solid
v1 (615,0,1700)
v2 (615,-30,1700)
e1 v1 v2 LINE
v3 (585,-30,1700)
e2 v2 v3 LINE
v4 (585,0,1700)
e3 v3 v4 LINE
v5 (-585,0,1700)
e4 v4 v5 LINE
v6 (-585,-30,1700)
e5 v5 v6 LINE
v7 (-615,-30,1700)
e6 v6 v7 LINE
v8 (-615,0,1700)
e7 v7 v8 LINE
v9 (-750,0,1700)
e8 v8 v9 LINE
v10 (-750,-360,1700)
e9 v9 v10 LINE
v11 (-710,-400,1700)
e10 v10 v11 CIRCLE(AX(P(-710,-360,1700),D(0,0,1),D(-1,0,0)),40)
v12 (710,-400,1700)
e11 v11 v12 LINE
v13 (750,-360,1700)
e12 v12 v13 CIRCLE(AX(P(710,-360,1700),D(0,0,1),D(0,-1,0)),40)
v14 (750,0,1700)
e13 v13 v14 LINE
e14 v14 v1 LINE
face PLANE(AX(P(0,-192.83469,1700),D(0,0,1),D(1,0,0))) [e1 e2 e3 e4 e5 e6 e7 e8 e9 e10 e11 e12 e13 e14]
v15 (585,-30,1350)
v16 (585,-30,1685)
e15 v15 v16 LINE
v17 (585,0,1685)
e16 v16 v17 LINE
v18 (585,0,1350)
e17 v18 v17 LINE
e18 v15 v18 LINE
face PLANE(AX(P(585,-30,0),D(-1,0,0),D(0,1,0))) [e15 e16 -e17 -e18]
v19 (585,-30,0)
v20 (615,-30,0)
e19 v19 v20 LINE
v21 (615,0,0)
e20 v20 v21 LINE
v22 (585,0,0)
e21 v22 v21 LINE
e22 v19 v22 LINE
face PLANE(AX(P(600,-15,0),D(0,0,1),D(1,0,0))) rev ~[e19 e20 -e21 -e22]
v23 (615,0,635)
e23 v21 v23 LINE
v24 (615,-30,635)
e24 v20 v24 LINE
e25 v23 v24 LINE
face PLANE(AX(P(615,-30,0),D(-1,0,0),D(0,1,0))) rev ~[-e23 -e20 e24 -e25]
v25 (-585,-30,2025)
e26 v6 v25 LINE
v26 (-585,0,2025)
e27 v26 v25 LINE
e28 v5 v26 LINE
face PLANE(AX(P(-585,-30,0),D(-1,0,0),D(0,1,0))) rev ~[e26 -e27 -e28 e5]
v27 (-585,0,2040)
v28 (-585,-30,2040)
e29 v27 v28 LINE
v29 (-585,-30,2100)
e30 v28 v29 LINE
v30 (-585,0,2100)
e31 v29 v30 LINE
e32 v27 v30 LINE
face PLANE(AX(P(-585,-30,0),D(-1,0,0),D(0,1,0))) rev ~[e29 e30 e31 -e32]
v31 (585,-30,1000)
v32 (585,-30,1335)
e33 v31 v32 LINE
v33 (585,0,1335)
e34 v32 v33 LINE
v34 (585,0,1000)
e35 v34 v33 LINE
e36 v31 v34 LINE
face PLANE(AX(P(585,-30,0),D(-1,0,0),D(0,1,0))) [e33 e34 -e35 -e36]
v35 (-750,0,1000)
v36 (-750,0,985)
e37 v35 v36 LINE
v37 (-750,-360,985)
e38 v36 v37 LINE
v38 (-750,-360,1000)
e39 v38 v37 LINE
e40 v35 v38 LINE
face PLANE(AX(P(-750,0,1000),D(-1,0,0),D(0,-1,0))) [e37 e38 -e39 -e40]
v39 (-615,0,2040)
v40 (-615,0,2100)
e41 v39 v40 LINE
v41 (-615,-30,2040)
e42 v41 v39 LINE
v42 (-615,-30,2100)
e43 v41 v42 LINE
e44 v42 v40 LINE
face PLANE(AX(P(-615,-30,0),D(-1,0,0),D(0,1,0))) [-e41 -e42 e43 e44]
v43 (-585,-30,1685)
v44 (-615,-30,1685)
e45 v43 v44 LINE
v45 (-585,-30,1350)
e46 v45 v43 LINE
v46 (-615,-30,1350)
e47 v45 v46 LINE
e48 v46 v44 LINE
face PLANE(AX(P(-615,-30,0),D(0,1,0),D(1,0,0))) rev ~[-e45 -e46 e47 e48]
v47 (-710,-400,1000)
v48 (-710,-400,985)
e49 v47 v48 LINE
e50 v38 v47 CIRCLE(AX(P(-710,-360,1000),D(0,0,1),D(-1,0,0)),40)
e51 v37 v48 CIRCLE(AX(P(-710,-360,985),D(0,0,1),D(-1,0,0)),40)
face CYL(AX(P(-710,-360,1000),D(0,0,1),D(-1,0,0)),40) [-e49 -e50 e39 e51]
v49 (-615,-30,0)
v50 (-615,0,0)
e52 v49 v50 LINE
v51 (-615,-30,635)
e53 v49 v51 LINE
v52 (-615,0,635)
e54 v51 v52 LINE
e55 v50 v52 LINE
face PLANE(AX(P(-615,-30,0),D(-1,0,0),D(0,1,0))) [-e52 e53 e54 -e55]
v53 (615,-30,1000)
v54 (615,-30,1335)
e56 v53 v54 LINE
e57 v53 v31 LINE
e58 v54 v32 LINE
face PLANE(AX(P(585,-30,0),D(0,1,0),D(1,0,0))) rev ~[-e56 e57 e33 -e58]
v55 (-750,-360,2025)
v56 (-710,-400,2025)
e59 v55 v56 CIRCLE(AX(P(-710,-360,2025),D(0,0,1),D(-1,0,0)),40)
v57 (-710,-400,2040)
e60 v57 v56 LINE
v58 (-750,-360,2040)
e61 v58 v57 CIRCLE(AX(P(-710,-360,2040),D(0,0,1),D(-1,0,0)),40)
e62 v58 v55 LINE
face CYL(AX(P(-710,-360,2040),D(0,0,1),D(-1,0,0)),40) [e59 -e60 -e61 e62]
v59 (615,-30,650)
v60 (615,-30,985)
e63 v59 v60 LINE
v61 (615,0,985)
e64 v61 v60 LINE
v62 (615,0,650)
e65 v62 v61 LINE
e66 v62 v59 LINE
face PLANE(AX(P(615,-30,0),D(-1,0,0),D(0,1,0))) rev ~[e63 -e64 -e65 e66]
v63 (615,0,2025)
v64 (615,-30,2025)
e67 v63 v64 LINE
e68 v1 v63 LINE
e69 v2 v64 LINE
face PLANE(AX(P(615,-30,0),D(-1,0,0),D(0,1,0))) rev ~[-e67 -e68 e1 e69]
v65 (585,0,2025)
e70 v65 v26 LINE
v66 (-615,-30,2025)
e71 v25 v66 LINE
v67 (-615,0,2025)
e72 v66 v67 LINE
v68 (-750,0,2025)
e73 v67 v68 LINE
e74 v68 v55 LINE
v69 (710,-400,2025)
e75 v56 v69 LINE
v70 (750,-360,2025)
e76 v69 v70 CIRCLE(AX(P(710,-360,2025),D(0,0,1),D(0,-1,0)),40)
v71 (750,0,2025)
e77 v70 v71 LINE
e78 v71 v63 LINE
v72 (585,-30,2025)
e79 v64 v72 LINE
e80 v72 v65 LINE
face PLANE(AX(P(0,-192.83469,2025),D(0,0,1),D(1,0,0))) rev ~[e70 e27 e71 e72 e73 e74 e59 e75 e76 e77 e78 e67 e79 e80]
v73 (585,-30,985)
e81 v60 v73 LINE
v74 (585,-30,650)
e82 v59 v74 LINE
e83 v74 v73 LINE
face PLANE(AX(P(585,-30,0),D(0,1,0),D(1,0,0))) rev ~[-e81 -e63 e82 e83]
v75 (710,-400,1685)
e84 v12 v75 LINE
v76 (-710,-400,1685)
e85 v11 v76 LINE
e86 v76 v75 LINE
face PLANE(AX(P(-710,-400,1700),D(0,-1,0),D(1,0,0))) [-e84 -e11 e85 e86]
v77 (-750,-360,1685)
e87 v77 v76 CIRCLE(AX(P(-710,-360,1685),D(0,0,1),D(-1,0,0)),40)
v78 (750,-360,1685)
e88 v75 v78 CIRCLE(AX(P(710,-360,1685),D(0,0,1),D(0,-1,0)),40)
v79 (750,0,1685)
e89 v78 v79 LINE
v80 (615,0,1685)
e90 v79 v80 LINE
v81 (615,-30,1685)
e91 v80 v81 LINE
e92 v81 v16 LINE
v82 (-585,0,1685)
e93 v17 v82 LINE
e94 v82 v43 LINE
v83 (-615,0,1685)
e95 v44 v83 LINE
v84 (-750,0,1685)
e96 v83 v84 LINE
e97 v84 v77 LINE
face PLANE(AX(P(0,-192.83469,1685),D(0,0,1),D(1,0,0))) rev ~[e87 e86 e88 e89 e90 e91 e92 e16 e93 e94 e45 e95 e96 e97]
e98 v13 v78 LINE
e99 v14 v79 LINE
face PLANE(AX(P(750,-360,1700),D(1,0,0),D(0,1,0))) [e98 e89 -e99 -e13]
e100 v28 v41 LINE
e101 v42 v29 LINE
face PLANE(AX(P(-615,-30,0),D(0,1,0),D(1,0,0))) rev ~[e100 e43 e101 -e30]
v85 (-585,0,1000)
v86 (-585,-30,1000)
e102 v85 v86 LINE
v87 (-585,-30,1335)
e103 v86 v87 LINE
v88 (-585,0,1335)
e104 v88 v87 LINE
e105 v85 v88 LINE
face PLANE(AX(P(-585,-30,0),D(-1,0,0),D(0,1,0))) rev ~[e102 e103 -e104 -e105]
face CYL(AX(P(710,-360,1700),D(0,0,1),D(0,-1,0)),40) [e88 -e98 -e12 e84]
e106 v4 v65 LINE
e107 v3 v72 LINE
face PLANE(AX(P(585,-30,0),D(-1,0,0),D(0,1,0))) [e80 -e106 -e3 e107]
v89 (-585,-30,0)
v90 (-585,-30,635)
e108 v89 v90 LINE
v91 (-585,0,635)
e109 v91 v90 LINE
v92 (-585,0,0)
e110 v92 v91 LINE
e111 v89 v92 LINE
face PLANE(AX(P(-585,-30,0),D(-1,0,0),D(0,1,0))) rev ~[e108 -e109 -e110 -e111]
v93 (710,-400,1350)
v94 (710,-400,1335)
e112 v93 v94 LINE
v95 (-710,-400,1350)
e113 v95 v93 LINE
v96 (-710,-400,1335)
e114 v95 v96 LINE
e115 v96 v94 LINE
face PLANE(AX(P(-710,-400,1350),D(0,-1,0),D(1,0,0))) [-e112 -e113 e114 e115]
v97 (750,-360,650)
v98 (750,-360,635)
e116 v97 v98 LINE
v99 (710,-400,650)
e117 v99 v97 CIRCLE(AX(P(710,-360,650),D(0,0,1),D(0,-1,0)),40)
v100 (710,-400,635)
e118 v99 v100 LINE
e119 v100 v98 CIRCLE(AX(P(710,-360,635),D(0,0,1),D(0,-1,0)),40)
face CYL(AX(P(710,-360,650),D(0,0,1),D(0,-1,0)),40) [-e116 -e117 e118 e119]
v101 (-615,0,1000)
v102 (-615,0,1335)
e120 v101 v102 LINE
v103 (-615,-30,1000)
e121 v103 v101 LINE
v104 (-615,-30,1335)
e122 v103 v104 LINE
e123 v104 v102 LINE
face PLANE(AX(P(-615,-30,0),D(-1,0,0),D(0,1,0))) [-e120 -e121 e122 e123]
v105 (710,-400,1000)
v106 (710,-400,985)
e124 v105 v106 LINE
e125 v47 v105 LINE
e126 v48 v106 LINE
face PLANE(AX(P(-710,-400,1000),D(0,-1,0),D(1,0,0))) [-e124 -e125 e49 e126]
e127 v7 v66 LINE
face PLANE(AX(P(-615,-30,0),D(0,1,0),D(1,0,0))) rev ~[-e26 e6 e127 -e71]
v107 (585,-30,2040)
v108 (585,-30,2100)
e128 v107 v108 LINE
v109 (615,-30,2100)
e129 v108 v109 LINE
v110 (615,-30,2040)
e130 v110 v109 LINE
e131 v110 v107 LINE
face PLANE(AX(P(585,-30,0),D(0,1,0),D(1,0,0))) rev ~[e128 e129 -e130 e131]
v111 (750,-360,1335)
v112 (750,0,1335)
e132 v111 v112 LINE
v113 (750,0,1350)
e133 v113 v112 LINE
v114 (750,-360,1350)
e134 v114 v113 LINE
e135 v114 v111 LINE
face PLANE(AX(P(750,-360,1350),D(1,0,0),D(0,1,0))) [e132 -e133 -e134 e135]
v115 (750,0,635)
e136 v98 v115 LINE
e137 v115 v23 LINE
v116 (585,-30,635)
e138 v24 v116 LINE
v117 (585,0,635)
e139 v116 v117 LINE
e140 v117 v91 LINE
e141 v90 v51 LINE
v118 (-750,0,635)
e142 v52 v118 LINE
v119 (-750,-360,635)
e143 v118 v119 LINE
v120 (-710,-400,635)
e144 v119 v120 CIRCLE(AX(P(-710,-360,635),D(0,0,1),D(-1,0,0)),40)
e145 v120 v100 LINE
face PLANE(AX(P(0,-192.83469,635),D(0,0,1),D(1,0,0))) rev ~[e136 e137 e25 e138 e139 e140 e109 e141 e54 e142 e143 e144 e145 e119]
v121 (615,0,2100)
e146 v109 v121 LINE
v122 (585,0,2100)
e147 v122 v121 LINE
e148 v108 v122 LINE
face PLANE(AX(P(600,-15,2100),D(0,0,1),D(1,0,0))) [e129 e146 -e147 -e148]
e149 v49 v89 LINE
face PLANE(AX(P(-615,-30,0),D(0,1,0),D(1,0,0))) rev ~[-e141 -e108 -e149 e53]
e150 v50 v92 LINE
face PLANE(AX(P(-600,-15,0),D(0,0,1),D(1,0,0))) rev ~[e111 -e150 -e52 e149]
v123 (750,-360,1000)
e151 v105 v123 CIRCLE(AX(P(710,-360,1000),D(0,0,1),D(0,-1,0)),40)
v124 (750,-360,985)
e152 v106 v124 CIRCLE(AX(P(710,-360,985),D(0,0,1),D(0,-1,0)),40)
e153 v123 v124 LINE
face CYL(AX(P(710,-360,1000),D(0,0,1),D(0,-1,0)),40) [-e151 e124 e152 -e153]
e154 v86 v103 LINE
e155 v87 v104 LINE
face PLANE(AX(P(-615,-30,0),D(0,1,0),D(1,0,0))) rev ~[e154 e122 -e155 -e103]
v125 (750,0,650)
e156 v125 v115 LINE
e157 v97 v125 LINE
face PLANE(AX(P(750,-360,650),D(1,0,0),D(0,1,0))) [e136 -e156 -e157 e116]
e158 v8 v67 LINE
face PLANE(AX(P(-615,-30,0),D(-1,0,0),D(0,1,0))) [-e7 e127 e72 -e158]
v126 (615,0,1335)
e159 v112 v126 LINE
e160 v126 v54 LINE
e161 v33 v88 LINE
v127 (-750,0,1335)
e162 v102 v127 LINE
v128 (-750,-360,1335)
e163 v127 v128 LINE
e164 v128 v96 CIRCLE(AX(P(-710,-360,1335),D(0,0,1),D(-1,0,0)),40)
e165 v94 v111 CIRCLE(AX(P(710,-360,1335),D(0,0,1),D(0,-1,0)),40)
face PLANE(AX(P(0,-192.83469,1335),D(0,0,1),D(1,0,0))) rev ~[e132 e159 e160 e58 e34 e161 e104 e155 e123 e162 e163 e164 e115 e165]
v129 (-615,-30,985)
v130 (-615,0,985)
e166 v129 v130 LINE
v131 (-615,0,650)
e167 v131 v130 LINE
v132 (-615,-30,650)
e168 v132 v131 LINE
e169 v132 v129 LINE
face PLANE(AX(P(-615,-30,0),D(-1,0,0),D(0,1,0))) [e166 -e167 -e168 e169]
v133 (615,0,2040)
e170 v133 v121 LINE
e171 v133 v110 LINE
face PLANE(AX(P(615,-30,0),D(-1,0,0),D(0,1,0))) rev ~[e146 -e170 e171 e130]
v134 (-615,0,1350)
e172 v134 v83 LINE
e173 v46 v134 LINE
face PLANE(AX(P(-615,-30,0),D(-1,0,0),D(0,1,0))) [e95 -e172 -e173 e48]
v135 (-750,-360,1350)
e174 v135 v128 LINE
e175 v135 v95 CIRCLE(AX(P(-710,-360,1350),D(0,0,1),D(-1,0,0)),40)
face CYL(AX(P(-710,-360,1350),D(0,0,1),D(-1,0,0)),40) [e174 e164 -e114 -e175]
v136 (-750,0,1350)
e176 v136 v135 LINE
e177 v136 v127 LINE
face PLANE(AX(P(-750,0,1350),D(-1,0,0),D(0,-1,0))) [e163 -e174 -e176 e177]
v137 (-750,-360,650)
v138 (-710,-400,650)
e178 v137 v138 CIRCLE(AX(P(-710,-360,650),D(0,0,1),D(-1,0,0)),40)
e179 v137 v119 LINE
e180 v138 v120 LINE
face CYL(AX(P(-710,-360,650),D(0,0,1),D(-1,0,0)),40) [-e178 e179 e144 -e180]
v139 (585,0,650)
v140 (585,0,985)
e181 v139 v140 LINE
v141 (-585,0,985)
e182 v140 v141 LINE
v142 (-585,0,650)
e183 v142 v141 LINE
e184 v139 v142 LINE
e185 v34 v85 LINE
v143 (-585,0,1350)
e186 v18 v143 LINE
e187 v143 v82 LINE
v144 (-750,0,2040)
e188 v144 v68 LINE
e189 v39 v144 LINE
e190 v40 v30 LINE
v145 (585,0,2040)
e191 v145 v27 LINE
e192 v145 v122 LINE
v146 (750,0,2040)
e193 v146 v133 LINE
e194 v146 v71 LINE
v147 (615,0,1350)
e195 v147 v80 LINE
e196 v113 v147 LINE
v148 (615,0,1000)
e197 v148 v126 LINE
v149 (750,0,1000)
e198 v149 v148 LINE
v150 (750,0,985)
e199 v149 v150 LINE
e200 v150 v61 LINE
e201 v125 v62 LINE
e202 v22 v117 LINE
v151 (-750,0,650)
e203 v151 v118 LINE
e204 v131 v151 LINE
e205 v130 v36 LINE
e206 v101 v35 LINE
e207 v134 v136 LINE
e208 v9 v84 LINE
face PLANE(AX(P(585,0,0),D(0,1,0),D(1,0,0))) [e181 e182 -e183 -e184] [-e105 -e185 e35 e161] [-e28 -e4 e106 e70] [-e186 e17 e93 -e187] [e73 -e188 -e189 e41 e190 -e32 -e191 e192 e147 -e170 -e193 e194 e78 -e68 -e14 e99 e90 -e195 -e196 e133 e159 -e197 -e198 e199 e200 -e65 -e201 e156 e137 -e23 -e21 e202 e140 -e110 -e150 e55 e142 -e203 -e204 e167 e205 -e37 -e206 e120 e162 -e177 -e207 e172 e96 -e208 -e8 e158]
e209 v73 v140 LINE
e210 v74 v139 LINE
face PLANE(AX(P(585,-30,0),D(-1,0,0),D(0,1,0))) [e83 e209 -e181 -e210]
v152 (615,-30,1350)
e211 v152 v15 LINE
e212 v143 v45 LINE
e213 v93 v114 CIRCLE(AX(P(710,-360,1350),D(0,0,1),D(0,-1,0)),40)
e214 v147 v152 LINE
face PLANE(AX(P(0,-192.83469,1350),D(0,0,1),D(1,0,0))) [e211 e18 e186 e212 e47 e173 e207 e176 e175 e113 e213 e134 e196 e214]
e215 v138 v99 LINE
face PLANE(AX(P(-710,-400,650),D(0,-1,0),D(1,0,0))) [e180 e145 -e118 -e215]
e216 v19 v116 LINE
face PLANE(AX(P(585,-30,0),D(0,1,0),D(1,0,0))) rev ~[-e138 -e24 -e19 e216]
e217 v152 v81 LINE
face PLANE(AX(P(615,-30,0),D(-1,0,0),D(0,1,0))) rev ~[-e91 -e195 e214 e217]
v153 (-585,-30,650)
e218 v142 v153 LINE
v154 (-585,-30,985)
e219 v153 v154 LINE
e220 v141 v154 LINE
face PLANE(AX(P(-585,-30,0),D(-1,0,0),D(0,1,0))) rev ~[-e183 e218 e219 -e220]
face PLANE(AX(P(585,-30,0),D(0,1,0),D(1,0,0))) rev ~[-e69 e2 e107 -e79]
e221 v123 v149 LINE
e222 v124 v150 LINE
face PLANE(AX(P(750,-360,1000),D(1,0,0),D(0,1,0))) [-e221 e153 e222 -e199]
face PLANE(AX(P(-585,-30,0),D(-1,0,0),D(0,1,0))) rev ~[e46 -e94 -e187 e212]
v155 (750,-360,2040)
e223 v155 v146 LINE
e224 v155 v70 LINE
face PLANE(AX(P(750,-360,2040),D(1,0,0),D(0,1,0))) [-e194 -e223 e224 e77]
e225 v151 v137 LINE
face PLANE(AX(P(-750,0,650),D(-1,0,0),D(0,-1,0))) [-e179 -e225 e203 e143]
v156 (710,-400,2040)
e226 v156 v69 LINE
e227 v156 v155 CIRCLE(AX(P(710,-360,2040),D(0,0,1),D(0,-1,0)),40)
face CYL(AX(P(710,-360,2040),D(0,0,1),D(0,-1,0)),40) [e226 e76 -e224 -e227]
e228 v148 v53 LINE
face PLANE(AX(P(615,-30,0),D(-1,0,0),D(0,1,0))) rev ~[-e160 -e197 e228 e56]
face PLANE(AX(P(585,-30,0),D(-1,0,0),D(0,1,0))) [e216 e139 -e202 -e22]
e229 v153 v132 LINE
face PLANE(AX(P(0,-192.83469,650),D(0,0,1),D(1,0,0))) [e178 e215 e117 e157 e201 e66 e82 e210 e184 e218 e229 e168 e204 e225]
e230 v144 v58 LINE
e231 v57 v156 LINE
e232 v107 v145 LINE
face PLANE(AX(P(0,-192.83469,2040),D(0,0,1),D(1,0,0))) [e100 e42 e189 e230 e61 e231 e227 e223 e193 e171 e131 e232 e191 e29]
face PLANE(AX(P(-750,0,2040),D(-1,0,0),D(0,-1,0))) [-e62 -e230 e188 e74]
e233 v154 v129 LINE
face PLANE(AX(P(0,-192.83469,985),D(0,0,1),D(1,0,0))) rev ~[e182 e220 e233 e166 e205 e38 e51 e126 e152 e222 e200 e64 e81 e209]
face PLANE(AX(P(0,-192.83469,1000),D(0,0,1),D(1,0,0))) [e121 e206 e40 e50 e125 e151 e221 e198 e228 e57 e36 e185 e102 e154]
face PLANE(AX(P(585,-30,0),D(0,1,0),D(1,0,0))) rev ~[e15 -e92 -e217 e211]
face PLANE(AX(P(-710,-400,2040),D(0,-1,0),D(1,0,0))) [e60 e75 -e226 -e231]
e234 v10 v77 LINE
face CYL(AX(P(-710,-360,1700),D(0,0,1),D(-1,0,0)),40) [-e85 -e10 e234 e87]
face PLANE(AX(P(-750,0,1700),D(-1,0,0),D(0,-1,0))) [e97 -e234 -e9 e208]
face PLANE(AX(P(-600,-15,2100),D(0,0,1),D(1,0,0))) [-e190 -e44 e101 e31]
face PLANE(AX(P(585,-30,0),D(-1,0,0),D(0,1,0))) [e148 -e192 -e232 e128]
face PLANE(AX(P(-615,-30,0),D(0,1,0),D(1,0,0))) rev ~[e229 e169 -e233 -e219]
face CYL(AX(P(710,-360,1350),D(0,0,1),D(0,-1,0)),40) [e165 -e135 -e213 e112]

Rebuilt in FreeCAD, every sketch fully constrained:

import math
import FreeCAD as App
import Part
import Sketcher
from FreeCAD import Vector
Q = App.Units.Quantity

doc = App.newDocument("Part")
body = doc.addObject("PartDesign::Body", "Body")

# Sketch on XY plane
sketch1 = body.newObject("Sketcher::SketchObject", "Sketch")
sketch1.AttachmentSupport = (doc.getObject("XY_Plane"), [""])
sketch1.MapMode = "FlatFace"
sketch1.addGeometry(Part.LineSegment(Vector(-615, 0, 0), Vector(-615, -30, 0)), False)
sketch1.addGeometry(Part.LineSegment(Vector(-615, -30, 0), Vector(-585, -30, 0)), False)
sketch1.addGeometry(Part.LineSegment(Vector(-585, -30, 0), Vector(-585, 0, 0)), False)
sketch1.addGeometry(Part.LineSegment(Vector(-585, 0, 0), Vector(-615, 0, 0)), False)
sketch1.addConstraint(Sketcher.Constraint("Coincident", 0, 2, 1, 1))
sketch1.addConstraint(Sketcher.Constraint("Coincident", 1, 2, 2, 1))
sketch1.addConstraint(Sketcher.Constraint("Coincident", 2, 2, 3, 1))
sketch1.addConstraint(Sketcher.Constraint("Coincident", 3, 2, 0, 1))
sketch1.addConstraint(Sketcher.Constraint("Vertical", 0))
sketch1.addConstraint(Sketcher.Constraint("Horizontal", 1))
sketch1.addConstraint(Sketcher.Constraint("Vertical", 2))
sketch1.addConstraint(Sketcher.Constraint("Horizontal", 3))
sketch1.addConstraint(Sketcher.Constraint("PointOnObject", 2, 2, -1))
sketch1.addConstraint(Sketcher.Constraint("Equal", 3, 0))
sketch1.addConstraint(Sketcher.Constraint("DistanceX", 1, 1, 1, 2, Q("30 mm")))
sketch1.addConstraint(Sketcher.Constraint("DistanceX", 0, 2, -1, 1, Q("615 mm")))
pad1 = body.newObject("PartDesign::Pad", "Pad")
pad1.Profile = sketch1
pad1.Length = 2100
body2 = doc.addObject("PartDesign::Body", "Body001")

# Sketch on XY plane
sketch2 = body2.newObject("Sketcher::SketchObject", "Sketch001")
sketch2.AttachmentSupport = (doc.getObject("XY_Plane001"), [""])
sketch2.MapMode = "FlatFace"
sketch2.addGeometry(Part.LineSegment(Vector(585, 0, 0), Vector(585, -30, 0)), False)
sketch2.addGeometry(Part.LineSegment(Vector(585, -30, 0), Vector(615, -30, 0)), False)
sketch2.addGeometry(Part.LineSegment(Vector(615, -30, 0), Vector(615, 0, 0)), False)
sketch2.addGeometry(Part.LineSegment(Vector(615, 0, 0), Vector(585, 0, 0)), False)
sketch2.addConstraint(Sketcher.Constraint("Coincident", 0, 2, 1, 1))
sketch2.addConstraint(Sketcher.Constraint("Coincident", 1, 2, 2, 1))
sketch2.addConstraint(Sketcher.Constraint("Coincident", 2, 2, 3, 1))
sketch2.addConstraint(Sketcher.Constraint("Coincident", 3, 2, 0, 1))
sketch2.addConstraint(Sketcher.Constraint("Vertical", 0))
sketch2.addConstraint(Sketcher.Constraint("Horizontal", 1))
sketch2.addConstraint(Sketcher.Constraint("Vertical", 2))
sketch2.addConstraint(Sketcher.Constraint("Horizontal", 3))
sketch2.addConstraint(Sketcher.Constraint("PointOnObject", 2, 2, -1))
sketch2.addConstraint(Sketcher.Constraint("Equal", 3, 0))
sketch2.addConstraint(Sketcher.Constraint("DistanceX", 1, 1, 1, 2, Q("30 mm")))
sketch2.addConstraint(Sketcher.Constraint("DistanceX", -1, 1, 0, 2, Q("585 mm")))
pad2 = body2.newObject("PartDesign::Pad", "Pad001")
pad2.Profile = sketch2
pad2.Length = 2100
body.AllowCompound = True
doc.recompute()

boolean = body.newObject("PartDesign::Boolean", "Boolean")
boolean.Type = "Fuse"
boolean.addObjects([body2])

# Sketch on XY plane
sketch3 = body.newObject("Sketcher::SketchObject", "Sketch002")
sketch3.AttachmentSupport = (doc.getObject("XY_Plane"), [""])
sketch3.MapMode = "FlatFace"
sketch3.AttachmentOffset = App.Placement(Vector(0, 0, 650), App.Rotation())
sketch3.addGeometry(Part.LineSegment(Vector(585, 0, 0), Vector(-585, 0, 0)), False)
sketch3.addGeometry(Part.LineSegment(Vector(-585, 0, 0), Vector(-585, -30, 0)), False)
sketch3.addGeometry(Part.LineSegment(Vector(-585, -30, 0), Vector(-615, -30, 0)), False)
sketch3.addGeometry(Part.LineSegment(Vector(-615, -30, 0), Vector(-615, 0, 0)), False)
sketch3.addGeometry(Part.LineSegment(Vector(-615, 0, 0), Vector(-750, 0, 0)), False)
sketch3.addGeometry(Part.LineSegment(Vector(-750, 0, 0), Vector(-750, -360, 0)), False)
sketch3.addGeometry(Part.ArcOfCircle(Part.Circle(Vector(-710, -360, 0), Vector(0, 0, 1), 40), math.radians(180), math.radians(270)), False)
sketch3.addGeometry(Part.LineSegment(Vector(-710, -400, 0), Vector(710, -400, 0)), False)
sketch3.addGeometry(Part.ArcOfCircle(Part.Circle(Vector(710, -360, 0), Vector(0, 0, 1), 40), math.radians(-90), math.radians(0)), False)
sketch3.addGeometry(Part.LineSegment(Vector(750, -360, 0), Vector(750, 0, 0)), False)
sketch3.addGeometry(Part.LineSegment(Vector(750, 0, 0), Vector(615, 0, 0)), False)
sketch3.addGeometry(Part.LineSegment(Vector(615, 0, 0), Vector(615, -30, 0)), False)
sketch3.addGeometry(Part.LineSegment(Vector(615, -30, 0), Vector(585, -30, 0)), False)
sketch3.addGeometry(Part.LineSegment(Vector(585, -30, 0), Vector(585, 0, 0)), False)
sketch3.addConstraint(Sketcher.Constraint("Coincident", 0, 2, 1, 1))
sketch3.addConstraint(Sketcher.Constraint("Coincident", 1, 2, 2, 1))
sketch3.addConstraint(Sketcher.Constraint("Coincident", 2, 2, 3, 1))
sketch3.addConstraint(Sketcher.Constraint("Coincident", 3, 2, 4, 1))
sketch3.addConstraint(Sketcher.Constraint("Coincident", 4, 2, 5, 1))
sketch3.addConstraint(Sketcher.Constraint("Tangent", 5, 2, 6, 1))
sketch3.addConstraint(Sketcher.Constraint("Tangent", 6, 2, 7, 1))
sketch3.addConstraint(Sketcher.Constraint("Tangent", 7, 2, 8, 1))
sketch3.addConstraint(Sketcher.Constraint("Tangent", 8, 2, 9, 1))
sketch3.addConstraint(Sketcher.Constraint("Coincident", 9, 2, 10, 1))
sketch3.addConstraint(Sketcher.Constraint("Coincident", 10, 2, 11, 1))
sketch3.addConstraint(Sketcher.Constraint("Coincident", 11, 2, 12, 1))
sketch3.addConstraint(Sketcher.Constraint("Coincident", 12, 2, 13, 1))
sketch3.addConstraint(Sketcher.Constraint("Coincident", 13, 2, 0, 1))
sketch3.addConstraint(Sketcher.Constraint("Horizontal", 0))
sketch3.addConstraint(Sketcher.Constraint("Vertical", 1))
sketch3.addConstraint(Sketcher.Constraint("Horizontal", 2))
sketch3.addConstraint(Sketcher.Constraint("Vertical", 3))
sketch3.addConstraint(Sketcher.Constraint("Horizontal", 4))
sketch3.addConstraint(Sketcher.Constraint("Vertical", 5))
sketch3.addConstraint(Sketcher.Constraint("Horizontal", 7))
sketch3.addConstraint(Sketcher.Constraint("Vertical", 9))
sketch3.addConstraint(Sketcher.Constraint("Horizontal", 10))
sketch3.addConstraint(Sketcher.Constraint("Vertical", 11))
sketch3.addConstraint(Sketcher.Constraint("Horizontal", 12))
sketch3.addConstraint(Sketcher.Constraint("Vertical", 13))
sketch3.addConstraint(Sketcher.Constraint("Equal", 6, 8))
sketch3.addConstraint(Sketcher.Constraint("Symmetric", 4, 2, 9, 2, -1, 1))
sketch3.addConstraint(Sketcher.Constraint("Symmetric", 0, 2, 13, 2, -1, 1))
sketch3.addConstraint(Sketcher.Constraint("Symmetric", 3, 2, 10, 2, -2))
sketch3.addConstraint(Sketcher.Constraint("Horizontal", 2, 2, 11, 2))
sketch3.addConstraint(Sketcher.Constraint("Equal", 12, 1))
sketch3.addConstraint(Sketcher.Constraint("Radius", 6, Q("40 mm")))
sketch3.addConstraint(Sketcher.Constraint("DistanceX", 0, 2, 0, 1, Q("1170 mm")))
sketch3.addConstraint(Sketcher.Constraint("DistanceX", 2, 2, 2, 1, Q("30 mm")))
sketch3.addConstraint(Sketcher.Constraint("DistanceX", 4, 2, 4, 1, Q("135 mm")))
sketch3.addConstraint(Sketcher.Constraint("DistanceY", 5, 2, 5, 1, Q("360 mm")))
pad3 = body.newObject("PartDesign::Pad", "Pad002")
pad3.Profile = sketch3
pad3.Length = 15
pad3.Reversed = True

# Sketch on XY plane
sketch4 = body.newObject("Sketcher::SketchObject", "Sketch003")
sketch4.AttachmentSupport = (doc.getObject("XY_Plane"), [""])
sketch4.MapMode = "FlatFace"
sketch4.AttachmentOffset = App.Placement(Vector(0, 0, 1000), App.Rotation())
sketch4.addGeometry(Part.ArcOfCircle(Part.Circle(Vector(710, -360, 0), Vector(0, 0, 1), 40), math.radians(-90), math.radians(0)), False)
sketch4.addGeometry(Part.LineSegment(Vector(750, -360, 0), Vector(750, 0, 0)), False)
sketch4.addGeometry(Part.LineSegment(Vector(750, 0, 0), Vector(615, 0, 0)), False)
sketch4.addGeometry(Part.LineSegment(Vector(615, 0, 0), Vector(615, -30, 0)), False)
sketch4.addGeometry(Part.LineSegment(Vector(615, -30, 0), Vector(585, -30, 0)), False)
sketch4.addGeometry(Part.LineSegment(Vector(585, -30, 0), Vector(585, 0, 0)), False)
sketch4.addGeometry(Part.LineSegment(Vector(585, 0, 0), Vector(-585, 0, 0)), False)
sketch4.addGeometry(Part.LineSegment(Vector(-585, 0, 0), Vector(-585, -30, 0)), False)
sketch4.addGeometry(Part.LineSegment(Vector(-585, -30, 0), Vector(-615, -30, 0)), False)
sketch4.addGeometry(Part.LineSegment(Vector(-615, -30, 0), Vector(-615, 0, 0)), False)
sketch4.addGeometry(Part.LineSegment(Vector(-615, 0, 0), Vector(-750, 0, 0)), False)
sketch4.addGeometry(Part.LineSegment(Vector(-750, 0, 0), Vector(-750, -360, 0)), False)
sketch4.addGeometry(Part.ArcOfCircle(Part.Circle(Vector(-710, -360, 0), Vector(0, 0, 1), 40), math.radians(180), math.radians(270)), False)
sketch4.addGeometry(Part.LineSegment(Vector(-710, -400, 0), Vector(710, -400, 0)), False)
sketch4.addConstraint(Sketcher.Constraint("Tangent", 0, 2, 1, 1))
sketch4.addConstraint(Sketcher.Constraint("Coincident", 1, 2, 2, 1))
sketch4.addConstraint(Sketcher.Constraint("Coincident", 2, 2, 3, 1))
sketch4.addConstraint(Sketcher.Constraint("Coincident", 3, 2, 4, 1))
sketch4.addConstraint(Sketcher.Constraint("Coincident", 4, 2, 5, 1))
sketch4.addConstraint(Sketcher.Constraint("Coincident", 5, 2, 6, 1))
sketch4.addConstraint(Sketcher.Constraint("Coincident", 6, 2, 7, 1))
sketch4.addConstraint(Sketcher.Constraint("Coincident", 7, 2, 8, 1))
sketch4.addConstraint(Sketcher.Constraint("Coincident", 8, 2, 9, 1))
sketch4.addConstraint(Sketcher.Constraint("Coincident", 9, 2, 10, 1))
sketch4.addConstraint(Sketcher.Constraint("Coincident", 10, 2, 11, 1))
sketch4.addConstraint(Sketcher.Constraint("Tangent", 11, 2, 12, 1))
sketch4.addConstraint(Sketcher.Constraint("Tangent", 12, 2, 13, 1))
sketch4.addConstraint(Sketcher.Constraint("Tangent", 13, 2, 0, 1))
sketch4.addConstraint(Sketcher.Constraint("Vertical", 1))
sketch4.addConstraint(Sketcher.Constraint("Horizontal", 2))
sketch4.addConstraint(Sketcher.Constraint("Vertical", 3))
sketch4.addConstraint(Sketcher.Constraint("Horizontal", 4))
sketch4.addConstraint(Sketcher.Constraint("Vertical", 5))
sketch4.addConstraint(Sketcher.Constraint("Horizontal", 6))
sketch4.addConstraint(Sketcher.Constraint("Vertical", 7))
sketch4.addConstraint(Sketcher.Constraint("Horizontal", 8))
sketch4.addConstraint(Sketcher.Constraint("Vertical", 9))
sketch4.addConstraint(Sketcher.Constraint("Horizontal", 10))
sketch4.addConstraint(Sketcher.Constraint("Vertical", 11))
sketch4.addConstraint(Sketcher.Constraint("Horizontal", 13))
sketch4.addConstraint(Sketcher.Constraint("Equal", 0, 12))
sketch4.addConstraint(Sketcher.Constraint("Symmetric", 5, 2, 6, 2, -1, 1))
sketch4.addConstraint(Sketcher.Constraint("Symmetric", 2, 2, 9, 2, -1, 1))
sketch4.addConstraint(Sketcher.Constraint("Symmetric", 1, 2, 10, 2, -2))
sketch4.addConstraint(Sketcher.Constraint("Horizontal", 4, 2, 7, 2))
sketch4.addConstraint(Sketcher.Constraint("Equal", 8, 3))
sketch4.addConstraint(Sketcher.Constraint("Radius", 0, Q("40 mm")))
sketch4.addConstraint(Sketcher.Constraint("DistanceX", 2, 2, 2, 1, Q("135 mm")))
sketch4.addConstraint(Sketcher.Constraint("DistanceX", 4, 2, 4, 1, Q("30 mm")))
sketch4.addConstraint(Sketcher.Constraint("DistanceX", 6, 2, 6, 1, Q("1170 mm")))
sketch4.addConstraint(Sketcher.Constraint("DistanceY", 1, 1, 1, 2, Q("360 mm")))
pad4 = body.newObject("PartDesign::Pad", "Pad003")
pad4.Profile = sketch4
pad4.Length = 15
pad4.Reversed = True

# Sketch on XY plane
sketch5 = body.newObject("Sketcher::SketchObject", "Sketch004")
sketch5.AttachmentSupport = (doc.getObject("XY_Plane"), [""])
sketch5.MapMode = "FlatFace"
sketch5.AttachmentOffset = App.Placement(Vector(0, 0, 1350), App.Rotation())
sketch5.addGeometry(Part.ArcOfCircle(Part.Circle(Vector(710, -360, 0), Vector(0, 0, 1), 40), math.radians(-90), math.radians(0)), False)
sketch5.addGeometry(Part.LineSegment(Vector(750, -360, 0), Vector(750, 0, 0)), False)
sketch5.addGeometry(Part.LineSegment(Vector(750, 0, 0), Vector(615, 0, 0)), False)
sketch5.addGeometry(Part.LineSegment(Vector(615, 0, 0), Vector(615, -30, 0)), False)
sketch5.addGeometry(Part.LineSegment(Vector(615, -30, 0), Vector(585, -30, 0)), False)
sketch5.addGeometry(Part.LineSegment(Vector(585, -30, 0), Vector(585, 0, 0)), False)
sketch5.addGeometry(Part.LineSegment(Vector(585, 0, 0), Vector(-585, 0, 0)), False)
sketch5.addGeometry(Part.LineSegment(Vector(-585, 0, 0), Vector(-585, -30, 0)), False)
sketch5.addGeometry(Part.LineSegment(Vector(-585, -30, 0), Vector(-615, -30, 0)), False)
sketch5.addGeometry(Part.LineSegment(Vector(-615, -30, 0), Vector(-615, 0, 0)), False)
sketch5.addGeometry(Part.LineSegment(Vector(-615, 0, 0), Vector(-750, 0, 0)), False)
sketch5.addGeometry(Part.LineSegment(Vector(-750, 0, 0), Vector(-750, -360, 0)), False)
sketch5.addGeometry(Part.ArcOfCircle(Part.Circle(Vector(-710, -360, 0), Vector(0, 0, 1), 40), math.radians(180), math.radians(270)), False)
sketch5.addGeometry(Part.LineSegment(Vector(-710, -400, 0), Vector(710, -400, 0)), False)
sketch5.addConstraint(Sketcher.Constraint("Tangent", 0, 2, 1, 1))
sketch5.addConstraint(Sketcher.Constraint("Coincident", 1, 2, 2, 1))
sketch5.addConstraint(Sketcher.Constraint("Coincident", 2, 2, 3, 1))
sketch5.addConstraint(Sketcher.Constraint("Coincident", 3, 2, 4, 1))
sketch5.addConstraint(Sketcher.Constraint("Coincident", 4, 2, 5, 1))
sketch5.addConstraint(Sketcher.Constraint("Coincident", 5, 2, 6, 1))
sketch5.addConstraint(Sketcher.Constraint("Coincident", 6, 2, 7, 1))
sketch5.addConstraint(Sketcher.Constraint("Coincident", 7, 2, 8, 1))
sketch5.addConstraint(Sketcher.Constraint("Coincident", 8, 2, 9, 1))
sketch5.addConstraint(Sketcher.Constraint("Coincident", 9, 2, 10, 1))
sketch5.addConstraint(Sketcher.Constraint("Coincident", 10, 2, 11, 1))
sketch5.addConstraint(Sketcher.Constraint("Tangent", 11, 2, 12, 1))
sketch5.addConstraint(Sketcher.Constraint("Tangent", 12, 2, 13, 1))
sketch5.addConstraint(Sketcher.Constraint("Tangent", 13, 2, 0, 1))
sketch5.addConstraint(Sketcher.Constraint("Vertical", 1))
sketch5.addConstraint(Sketcher.Constraint("Horizontal", 2))
sketch5.addConstraint(Sketcher.Constraint("Vertical", 3))
sketch5.addConstraint(Sketcher.Constraint("Horizontal", 4))
sketch5.addConstraint(Sketcher.Constraint("Vertical", 5))
sketch5.addConstraint(Sketcher.Constraint("Horizontal", 6))
sketch5.addConstraint(Sketcher.Constraint("Vertical", 7))
sketch5.addConstraint(Sketcher.Constraint("Horizontal", 8))
sketch5.addConstraint(Sketcher.Constraint("Vertical", 9))
sketch5.addConstraint(Sketcher.Constraint("Horizontal", 10))
sketch5.addConstraint(Sketcher.Constraint("Vertical", 11))
sketch5.addConstraint(Sketcher.Constraint("Horizontal", 13))
sketch5.addConstraint(Sketcher.Constraint("Equal", 0, 12))
sketch5.addConstraint(Sketcher.Constraint("Symmetric", 5, 2, 6, 2, -1, 1))
sketch5.addConstraint(Sketcher.Constraint("Symmetric", 2, 2, 9, 2, -1, 1))
sketch5.addConstraint(Sketcher.Constraint("Symmetric", 1, 2, 10, 2, -2))
sketch5.addConstraint(Sketcher.Constraint("Horizontal", 4, 2, 7, 2))
sketch5.addConstraint(Sketcher.Constraint("Equal", 8, 3))
sketch5.addConstraint(Sketcher.Constraint("Radius", 0, Q("40 mm")))
sketch5.addConstraint(Sketcher.Constraint("DistanceX", 2, 2, 2, 1, Q("135 mm")))
sketch5.addConstraint(Sketcher.Constraint("DistanceX", 4, 2, 4, 1, Q("30 mm")))
sketch5.addConstraint(Sketcher.Constraint("DistanceX", 6, 2, 6, 1, Q("1170 mm")))
sketch5.addConstraint(Sketcher.Constraint("DistanceY", 1, 1, 1, 2, Q("360 mm")))
pad5 = body.newObject("PartDesign::Pad", "Pad004")
pad5.Profile = sketch5
pad5.Length = 15
pad5.Reversed = True

# Sketch on XY plane
sketch6 = body.newObject("Sketcher::SketchObject", "Sketch005")
sketch6.AttachmentSupport = (doc.getObject("XY_Plane"), [""])
sketch6.MapMode = "FlatFace"
sketch6.AttachmentOffset = App.Placement(Vector(0, 0, 1700), App.Rotation())
sketch6.addGeometry(Part.ArcOfCircle(Part.Circle(Vector(710, -360, 0), Vector(0, 0, 1), 40), math.radians(-90), math.radians(0)), False)
sketch6.addGeometry(Part.LineSegment(Vector(750, -360, 0), Vector(750, 0, 0)), False)
sketch6.addGeometry(Part.LineSegment(Vector(750, 0, 0), Vector(615, 0, 0)), False)
sketch6.addGeometry(Part.LineSegment(Vector(615, 0, 0), Vector(615, -30, 0)), False)
sketch6.addGeometry(Part.LineSegment(Vector(615, -30, 0), Vector(585, -30, 0)), False)
sketch6.addGeometry(Part.LineSegment(Vector(585, -30, 0), Vector(585, 0, 0)), False)
sketch6.addGeometry(Part.LineSegment(Vector(585, 0, 0), Vector(-585, 0, 0)), False)
sketch6.addGeometry(Part.LineSegment(Vector(-585, 0, 0), Vector(-585, -30, 0)), False)
sketch6.addGeometry(Part.LineSegment(Vector(-585, -30, 0), Vector(-615, -30, 0)), False)
sketch6.addGeometry(Part.LineSegment(Vector(-615, -30, 0), Vector(-615, 0, 0)), False)
sketch6.addGeometry(Part.LineSegment(Vector(-615, 0, 0), Vector(-750, 0, 0)), False)
sketch6.addGeometry(Part.LineSegment(Vector(-750, 0, 0), Vector(-750, -360, 0)), False)
sketch6.addGeometry(Part.ArcOfCircle(Part.Circle(Vector(-710, -360, 0), Vector(0, 0, 1), 40), math.radians(180), math.radians(270)), False)
sketch6.addGeometry(Part.LineSegment(Vector(-710, -400, 0), Vector(710, -400, 0)), False)
sketch6.addConstraint(Sketcher.Constraint("Tangent", 0, 2, 1, 1))
sketch6.addConstraint(Sketcher.Constraint("Coincident", 1, 2, 2, 1))
sketch6.addConstraint(Sketcher.Constraint("Coincident", 2, 2, 3, 1))
sketch6.addConstraint(Sketcher.Constraint("Coincident", 3, 2, 4, 1))
sketch6.addConstraint(Sketcher.Constraint("Coincident", 4, 2, 5, 1))
sketch6.addConstraint(Sketcher.Constraint("Coincident", 5, 2, 6, 1))
sketch6.addConstraint(Sketcher.Constraint("Coincident", 6, 2, 7, 1))
sketch6.addConstraint(Sketcher.Constraint("Coincident", 7, 2, 8, 1))
sketch6.addConstraint(Sketcher.Constraint("Coincident", 8, 2, 9, 1))
sketch6.addConstraint(Sketcher.Constraint("Coincident", 9, 2, 10, 1))
sketch6.addConstraint(Sketcher.Constraint("Coincident", 10, 2, 11, 1))
sketch6.addConstraint(Sketcher.Constraint("Tangent", 11, 2, 12, 1))
sketch6.addConstraint(Sketcher.Constraint("Tangent", 12, 2, 13, 1))
sketch6.addConstraint(Sketcher.Constraint("Tangent", 13, 2, 0, 1))
sketch6.addConstraint(Sketcher.Constraint("Vertical", 1))
sketch6.addConstraint(Sketcher.Constraint("Horizontal", 2))
sketch6.addConstraint(Sketcher.Constraint("Vertical", 3))
sketch6.addConstraint(Sketcher.Constraint("Horizontal", 4))
sketch6.addConstraint(Sketcher.Constraint("Vertical", 5))
sketch6.addConstraint(Sketcher.Constraint("Horizontal", 6))
sketch6.addConstraint(Sketcher.Constraint("Vertical", 7))
sketch6.addConstraint(Sketcher.Constraint("Horizontal", 8))
sketch6.addConstraint(Sketcher.Constraint("Vertical", 9))
sketch6.addConstraint(Sketcher.Constraint("Horizontal", 10))
sketch6.addConstraint(Sketcher.Constraint("Vertical", 11))
sketch6.addConstraint(Sketcher.Constraint("Horizontal", 13))
sketch6.addConstraint(Sketcher.Constraint("Equal", 0, 12))
sketch6.addConstraint(Sketcher.Constraint("Symmetric", 5, 2, 6, 2, -1, 1))
sketch6.addConstraint(Sketcher.Constraint("Symmetric", 2, 2, 9, 2, -1, 1))
sketch6.addConstraint(Sketcher.Constraint("Symmetric", 1, 2, 10, 2, -2))
sketch6.addConstraint(Sketcher.Constraint("Horizontal", 4, 2, 7, 2))
sketch6.addConstraint(Sketcher.Constraint("Equal", 8, 3))
sketch6.addConstraint(Sketcher.Constraint("Radius", 0, Q("40 mm")))
sketch6.addConstraint(Sketcher.Constraint("DistanceX", 2, 2, 2, 1, Q("135 mm")))
sketch6.addConstraint(Sketcher.Constraint("DistanceX", 4, 2, 4, 1, Q("30 mm")))
sketch6.addConstraint(Sketcher.Constraint("DistanceX", 6, 2, 6, 1, Q("1170 mm")))
sketch6.addConstraint(Sketcher.Constraint("DistanceY", 1, 1, 1, 2, Q("360 mm")))
pad6 = body.newObject("PartDesign::Pad", "Pad005")
pad6.Profile = sketch6
pad6.Length = 15
pad6.Reversed = True

# Sketch on XY plane
sketch7 = body.newObject("Sketcher::SketchObject", "Sketch006")
sketch7.AttachmentSupport = (doc.getObject("XY_Plane"), [""])
sketch7.MapMode = "FlatFace"
sketch7.AttachmentOffset = App.Placement(Vector(0, 0, 2040), App.Rotation())
sketch7.addGeometry(Part.ArcOfCircle(Part.Circle(Vector(710, -360, 0), Vector(0, 0, 1), 40), math.radians(-90), math.radians(0)), False)
sketch7.addGeometry(Part.LineSegment(Vector(750, -360, 0), Vector(750, 0, 0)), False)
sketch7.addGeometry(Part.LineSegment(Vector(750, 0, 0), Vector(615, 0, 0)), False)
sketch7.addGeometry(Part.LineSegment(Vector(615, 0, 0), Vector(615, -30, 0)), False)
sketch7.addGeometry(Part.LineSegment(Vector(615, -30, 0), Vector(585, -30, 0)), False)
sketch7.addGeometry(Part.LineSegment(Vector(585, -30, 0), Vector(585, 0, 0)), False)
sketch7.addGeometry(Part.LineSegment(Vector(585, 0, 0), Vector(-585, 0, 0)), False)
sketch7.addGeometry(Part.LineSegment(Vector(-585, 0, 0), Vector(-585, -30, 0)), False)
sketch7.addGeometry(Part.LineSegment(Vector(-585, -30, 0), Vector(-615, -30, 0)), False)
sketch7.addGeometry(Part.LineSegment(Vector(-615, -30, 0), Vector(-615, 0, 0)), False)
sketch7.addGeometry(Part.LineSegment(Vector(-615, 0, 0), Vector(-750, 0, 0)), False)
sketch7.addGeometry(Part.LineSegment(Vector(-750, 0, 0), Vector(-750, -360, 0)), False)
sketch7.addGeometry(Part.ArcOfCircle(Part.Circle(Vector(-710, -360, 0), Vector(0, 0, 1), 40), math.radians(180), math.radians(270)), False)
sketch7.addGeometry(Part.LineSegment(Vector(-710, -400, 0), Vector(710, -400, 0)), False)
sketch7.addConstraint(Sketcher.Constraint("Tangent", 0, 2, 1, 1))
sketch7.addConstraint(Sketcher.Constraint("Coincident", 1, 2, 2, 1))
sketch7.addConstraint(Sketcher.Constraint("Coincident", 2, 2, 3, 1))
sketch7.addConstraint(Sketcher.Constraint("Coincident", 3, 2, 4, 1))
sketch7.addConstraint(Sketcher.Constraint("Coincident", 4, 2, 5, 1))
sketch7.addConstraint(Sketcher.Constraint("Coincident", 5, 2, 6, 1))
sketch7.addConstraint(Sketcher.Constraint("Coincident", 6, 2, 7, 1))
sketch7.addConstraint(Sketcher.Constraint("Coincident", 7, 2, 8, 1))
sketch7.addConstraint(Sketcher.Constraint("Coincident", 8, 2, 9, 1))
sketch7.addConstraint(Sketcher.Constraint("Coincident", 9, 2, 10, 1))
sketch7.addConstraint(Sketcher.Constraint("Coincident", 10, 2, 11, 1))
sketch7.addConstraint(Sketcher.Constraint("Tangent", 11, 2, 12, 1))
sketch7.addConstraint(Sketcher.Constraint("Tangent", 12, 2, 13, 1))
sketch7.addConstraint(Sketcher.Constraint("Tangent", 13, 2, 0, 1))
sketch7.addConstraint(Sketcher.Constraint("Vertical", 1))
sketch7.addConstraint(Sketcher.Constraint("Horizontal", 2))
sketch7.addConstraint(Sketcher.Constraint("Vertical", 3))
sketch7.addConstraint(Sketcher.Constraint("Horizontal", 4))
sketch7.addConstraint(Sketcher.Constraint("Vertical", 5))
sketch7.addConstraint(Sketcher.Constraint("Horizontal", 6))
sketch7.addConstraint(Sketcher.Constraint("Vertical", 7))
sketch7.addConstraint(Sketcher.Constraint("Horizontal", 8))
sketch7.addConstraint(Sketcher.Constraint("Vertical", 9))
sketch7.addConstraint(Sketcher.Constraint("Horizontal", 10))
sketch7.addConstraint(Sketcher.Constraint("Vertical", 11))
sketch7.addConstraint(Sketcher.Constraint("Horizontal", 13))
sketch7.addConstraint(Sketcher.Constraint("Equal", 0, 12))
sketch7.addConstraint(Sketcher.Constraint("Symmetric", 5, 2, 6, 2, -1, 1))
sketch7.addConstraint(Sketcher.Constraint("Symmetric", 2, 2, 9, 2, -1, 1))
sketch7.addConstraint(Sketcher.Constraint("Symmetric", 1, 2, 10, 2, -2))
sketch7.addConstraint(Sketcher.Constraint("Horizontal", 4, 2, 7, 2))
sketch7.addConstraint(Sketcher.Constraint("Equal", 8, 3))
sketch7.addConstraint(Sketcher.Constraint("Radius", 0, Q("40 mm")))
sketch7.addConstraint(Sketcher.Constraint("DistanceX", 2, 2, 2, 1, Q("135 mm")))
sketch7.addConstraint(Sketcher.Constraint("DistanceX", 4, 2, 4, 1, Q("30 mm")))
sketch7.addConstraint(Sketcher.Constraint("DistanceX", 6, 2, 6, 1, Q("1170 mm")))
sketch7.addConstraint(Sketcher.Constraint("DistanceY", 1, 1, 1, 2, Q("360 mm")))
pad7 = body.newObject("PartDesign::Pad", "Pad006")
pad7.Profile = sketch7
pad7.Length = 15
pad7.Reversed = True

doc.recompute()
